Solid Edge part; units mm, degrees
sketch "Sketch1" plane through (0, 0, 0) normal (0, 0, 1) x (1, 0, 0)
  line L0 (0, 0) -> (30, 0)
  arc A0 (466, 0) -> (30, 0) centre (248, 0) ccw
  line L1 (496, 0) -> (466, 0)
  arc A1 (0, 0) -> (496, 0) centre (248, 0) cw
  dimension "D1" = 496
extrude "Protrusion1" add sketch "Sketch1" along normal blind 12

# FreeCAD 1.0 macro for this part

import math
import FreeCAD as App
import Part
import Sketcher
from FreeCAD import Vector
Q = App.Units.Quantity

doc = App.newDocument("Part")
body = doc.addObject("PartDesign::Body", "Body")

# Sketch on XY plane
sketch1 = body.newObject("Sketcher::SketchObject", "Sketch")
sketch1.AttachmentSupport = (doc.getObject("XY_Plane"), [""])
sketch1.MapMode = "FlatFace"
sketch1.addGeometry([
    Part.ArcOfCircle(Part.Circle(Vector(248, 0, 0), Vector(0, 0, 1), 248), math.radians(0), math.radians(180)),
    Part.LineSegment(Vector(0, 0, 0), Vector(30, 0, 0)),
    Part.ArcOfCircle(Part.Circle(Vector(248, 0, 0), Vector(0, 0, 1), 218), math.radians(0), math.radians(180)),
    Part.LineSegment(Vector(466, 0, 0), Vector(496, 0, 0)),
], False)
sketch1.addConstraint([
    Sketcher.Constraint("Coincident", 0, 2, 1, 1),
    Sketcher.Constraint("Coincident", 1, 2, 2, 2),
    Sketcher.Constraint("Coincident", 2, 1, 3, 1),
    Sketcher.Constraint("Coincident", 3, 2, 0, 1),
    Sketcher.Constraint("Horizontal", 1),
    Sketcher.Constraint("Horizontal", 3),
    Sketcher.Constraint("Coincident", 0, 2, -1, 1),
    Sketcher.Constraint("Coincident", 2, 3, 0, 3),
    Sketcher.Constraint("PointOnObject", 0, 3, -1),
    Sketcher.Constraint("PointOnObject", 2, 1, -1),
    Sketcher.Constraint("Radius", 0, Q("248 mm")),
    Sketcher.Constraint("Radius", 2, Q("218 mm")),
])
pad1 = body.newObject("PartDesign::Pad", "Pad")
pad1.Profile = sketch1
pad1.Length = 12

doc.recompute()
